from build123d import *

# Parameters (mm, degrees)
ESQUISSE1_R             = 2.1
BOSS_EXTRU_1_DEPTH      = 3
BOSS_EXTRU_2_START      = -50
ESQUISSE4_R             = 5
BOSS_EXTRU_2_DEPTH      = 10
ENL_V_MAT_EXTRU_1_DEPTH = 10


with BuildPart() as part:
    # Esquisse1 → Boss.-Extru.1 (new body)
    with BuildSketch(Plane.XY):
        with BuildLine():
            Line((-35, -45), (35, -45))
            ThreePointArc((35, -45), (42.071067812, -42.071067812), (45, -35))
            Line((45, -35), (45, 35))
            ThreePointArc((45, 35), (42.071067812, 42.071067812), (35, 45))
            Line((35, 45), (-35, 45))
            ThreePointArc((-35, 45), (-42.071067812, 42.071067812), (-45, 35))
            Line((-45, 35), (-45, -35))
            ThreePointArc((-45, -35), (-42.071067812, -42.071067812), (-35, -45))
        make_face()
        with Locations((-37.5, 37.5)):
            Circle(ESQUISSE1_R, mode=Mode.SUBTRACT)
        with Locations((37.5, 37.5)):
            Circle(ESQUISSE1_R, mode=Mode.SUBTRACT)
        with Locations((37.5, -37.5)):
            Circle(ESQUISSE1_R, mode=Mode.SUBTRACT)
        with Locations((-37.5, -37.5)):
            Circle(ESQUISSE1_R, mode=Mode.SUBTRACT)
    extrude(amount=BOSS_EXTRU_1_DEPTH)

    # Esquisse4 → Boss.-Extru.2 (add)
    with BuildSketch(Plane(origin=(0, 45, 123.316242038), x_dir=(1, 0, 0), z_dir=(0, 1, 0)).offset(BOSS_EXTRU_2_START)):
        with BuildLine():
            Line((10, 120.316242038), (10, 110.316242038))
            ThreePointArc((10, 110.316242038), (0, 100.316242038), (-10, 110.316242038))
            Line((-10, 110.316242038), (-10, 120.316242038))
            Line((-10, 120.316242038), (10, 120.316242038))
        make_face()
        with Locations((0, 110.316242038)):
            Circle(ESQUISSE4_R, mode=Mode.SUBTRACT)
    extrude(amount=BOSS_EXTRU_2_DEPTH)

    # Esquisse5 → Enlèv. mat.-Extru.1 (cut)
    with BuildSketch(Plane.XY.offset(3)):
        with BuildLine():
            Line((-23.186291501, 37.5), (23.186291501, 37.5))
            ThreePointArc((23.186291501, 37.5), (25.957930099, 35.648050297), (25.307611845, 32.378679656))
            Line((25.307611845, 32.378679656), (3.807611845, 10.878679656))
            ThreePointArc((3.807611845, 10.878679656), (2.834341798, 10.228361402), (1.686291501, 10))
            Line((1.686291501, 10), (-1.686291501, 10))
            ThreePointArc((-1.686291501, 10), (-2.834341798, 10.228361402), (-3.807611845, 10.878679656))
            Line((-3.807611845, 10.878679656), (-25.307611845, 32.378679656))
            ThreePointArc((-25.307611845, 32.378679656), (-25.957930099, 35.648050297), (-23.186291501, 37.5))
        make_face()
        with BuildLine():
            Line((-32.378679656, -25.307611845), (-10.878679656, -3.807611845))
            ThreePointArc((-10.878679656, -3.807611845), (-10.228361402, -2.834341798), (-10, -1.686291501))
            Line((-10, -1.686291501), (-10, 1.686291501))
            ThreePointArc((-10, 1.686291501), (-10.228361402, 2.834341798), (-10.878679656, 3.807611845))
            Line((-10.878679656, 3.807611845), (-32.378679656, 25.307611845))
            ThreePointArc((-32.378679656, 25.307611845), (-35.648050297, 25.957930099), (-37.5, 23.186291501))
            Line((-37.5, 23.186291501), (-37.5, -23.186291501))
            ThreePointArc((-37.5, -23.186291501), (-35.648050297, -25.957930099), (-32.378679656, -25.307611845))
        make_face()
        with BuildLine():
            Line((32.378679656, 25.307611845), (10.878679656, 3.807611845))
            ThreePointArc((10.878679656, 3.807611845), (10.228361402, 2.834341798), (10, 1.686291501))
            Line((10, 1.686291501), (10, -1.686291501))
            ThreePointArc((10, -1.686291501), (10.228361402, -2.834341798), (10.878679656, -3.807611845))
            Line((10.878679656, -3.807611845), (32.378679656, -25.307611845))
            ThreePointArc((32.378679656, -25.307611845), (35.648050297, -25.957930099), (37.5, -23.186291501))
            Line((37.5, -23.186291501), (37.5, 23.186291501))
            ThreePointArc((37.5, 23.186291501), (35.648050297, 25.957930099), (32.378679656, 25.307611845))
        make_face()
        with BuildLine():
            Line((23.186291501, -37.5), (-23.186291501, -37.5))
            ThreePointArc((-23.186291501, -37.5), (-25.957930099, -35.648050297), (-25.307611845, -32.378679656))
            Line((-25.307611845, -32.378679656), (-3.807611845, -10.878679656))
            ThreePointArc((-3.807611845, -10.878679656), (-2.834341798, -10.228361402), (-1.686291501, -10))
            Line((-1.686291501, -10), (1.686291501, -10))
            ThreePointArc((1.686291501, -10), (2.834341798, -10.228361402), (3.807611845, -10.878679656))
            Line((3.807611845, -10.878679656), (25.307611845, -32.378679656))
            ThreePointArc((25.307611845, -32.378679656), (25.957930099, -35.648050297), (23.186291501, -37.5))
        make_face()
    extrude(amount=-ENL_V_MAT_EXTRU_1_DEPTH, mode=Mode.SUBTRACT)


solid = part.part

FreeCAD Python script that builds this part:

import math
import FreeCAD as App
import Part
import Sketcher

doc = App.newDocument("Part")
body = doc.addObject("PartDesign::Body", "Body")

sketch1 = body.newObject("Sketcher::SketchObject", "Sketch")
sketch1.AttachmentSupport = (doc.getObject("XY_Plane"), [""])
sketch1.MapMode = "FlatFace"
sketch1.addGeometry(Part.LineSegment(App.Vector(-35, -45, 0), App.Vector(35, -45, 0)), False)
sketch1.addGeometry(Part.ArcOfCircle(Part.Circle(App.Vector(35, -35, 0), App.Vector(0, 0, 1), 10), math.radians(-90), math.radians(0)), False)
sketch1.addGeometry(Part.LineSegment(App.Vector(45, -35, 0), App.Vector(45, 35, 0)), False)
sketch1.addGeometry(Part.ArcOfCircle(Part.Circle(App.Vector(35, 35, 0), App.Vector(0, 0, 1), 10), math.radians(0), math.radians(90)), False)
sketch1.addGeometry(Part.LineSegment(App.Vector(35, 45, 0), App.Vector(-35, 45, 0)), False)
sketch1.addGeometry(Part.ArcOfCircle(Part.Circle(App.Vector(-35, 35, 0), App.Vector(0, 0, 1), 10), math.radians(90), math.radians(180)), False)
sketch1.addGeometry(Part.LineSegment(App.Vector(-45, 35, 0), App.Vector(-45, -35, 0)), False)
sketch1.addGeometry(Part.ArcOfCircle(Part.Circle(App.Vector(-35, -35, 0), App.Vector(0, 0, 1), 10), math.radians(180), math.radians(270)), False)
sketch1.addGeometry(Part.Circle(App.Vector(-37.5, -37.5, 0), App.Vector(0, 0, 1), 2.1), False)
sketch1.addGeometry(Part.Circle(App.Vector(37.5, -37.5, 0), App.Vector(0, 0, 1), 2.1), False)
sketch1.addGeometry(Part.Circle(App.Vector(-37.5, 37.5, 0), App.Vector(0, 0, 1), 2.1), False)
sketch1.addGeometry(Part.Circle(App.Vector(37.5, 37.5, 0), App.Vector(0, 0, 1), 2.1), False)
sketch1.addConstraint(Sketcher.Constraint("Tangent", 0, 2, 1, 1))
sketch1.addConstraint(Sketcher.Constraint("Tangent", 1, 2, 2, 1))
sketch1.addConstraint(Sketcher.Constraint("Tangent", 2, 2, 3, 1))
sketch1.addConstraint(Sketcher.Constraint("Tangent", 3, 2, 4, 1))
sketch1.addConstraint(Sketcher.Constraint("Tangent", 4, 2, 5, 1))
sketch1.addConstraint(Sketcher.Constraint("Tangent", 5, 2, 6, 1))
sketch1.addConstraint(Sketcher.Constraint("Tangent", 6, 2, 7, 1))
sketch1.addConstraint(Sketcher.Constraint("Tangent", 7, 2, 0, 1))
sketch1.addConstraint(Sketcher.Constraint("Horizontal", 0))
sketch1.addConstraint(Sketcher.Constraint("Vertical", 2))
sketch1.addConstraint(Sketcher.Constraint("Horizontal", 4))
sketch1.addConstraint(Sketcher.Constraint("Vertical", 6))
sketch1.addConstraint(Sketcher.Constraint("Equal", 1, 3))
sketch1.addConstraint(Sketcher.Constraint("Equal", 3, 5))
sketch1.addConstraint(Sketcher.Constraint("Equal", 5, 7))
sketch1.addConstraint(Sketcher.Constraint("Equal", 8, 9))
sketch1.addConstraint(Sketcher.Constraint("Equal", 9, 10))
sketch1.addConstraint(Sketcher.Constraint("Equal", 10, 11))
sketch1.addConstraint(Sketcher.Constraint("Symmetric", 1, 3, 5, 3, -1, 1))
sketch1.addConstraint(Sketcher.Constraint("Symmetric", 9, 3, 10, 3, -1, 1))
sketch1.addConstraint(Sketcher.Constraint("Symmetric", 8, 3, 11, 3, -1, 1))
sketch1.addConstraint(Sketcher.Constraint("Symmetric", 8, 3, 9, 3, -2))
sketch1.addConstraint(Sketcher.Constraint("Equal", 4, 2))
sketch1.addConstraint(Sketcher.Constraint("Radius", 1, 10.0))
sketch1.addConstraint(Sketcher.Constraint("Diameter", 8, 4.2))
sketch1.addConstraint(Sketcher.Constraint("DistanceX", 0, 1, 0, 2, 70.0))
sketch1.addConstraint(Sketcher.Constraint("DistanceX", 8, 3, 9, 3, 75.0))
sketch1.addConstraint(Sketcher.Constraint("DistanceY", 8, 3, 10, 3, 75.0))
pad1 = body.newObject("PartDesign::Pad", "Pad")
pad1.Profile = sketch1
pad1.Length = 3

sketch2 = body.newObject("Sketcher::SketchObject", "Sketch001")
sketch2.AttachmentSupport = (doc.getObject("XZ_Plane"), [""])
sketch2.MapMode = "FlatFace"
sketch2.AttachmentOffset = App.Placement(App.Vector(0, 0, 5), App.Rotation())
sketch2.addGeometry(Part.LineSegment(App.Vector(10, 13, 0), App.Vector(10, 3, 0)), False)
sketch2.addGeometry(Part.LineSegment(App.Vector(10, 3, 0), App.Vector(-10, 3, 0)), False)
sketch2.addGeometry(Part.LineSegment(App.Vector(-10, 3, 0), App.Vector(-10, 13, 0)), False)
sketch2.addGeometry(Part.ArcOfCircle(Part.Circle(App.Vector(0, 13, 0), App.Vector(0, 0, 1), 10), math.radians(0), math.radians(180)), False)
sketch2.addGeometry(Part.Circle(App.Vector(0, 13, 0), App.Vector(0, 0, 1), 5), False)
sketch2.addConstraint(Sketcher.Constraint("Coincident", 0, 2, 1, 1))
sketch2.addConstraint(Sketcher.Constraint("Coincident", 1, 2, 2, 1))
sketch2.addConstraint(Sketcher.Constraint("Tangent", 2, 2, 3, 2))
sketch2.addConstraint(Sketcher.Constraint("Tangent", 3, 1, 0, 1))
sketch2.addConstraint(Sketcher.Constraint("Vertical", 0))
sketch2.addConstraint(Sketcher.Constraint("Horizontal", 1))
sketch2.addConstraint(Sketcher.Constraint("Vertical", 2))
sketch2.addConstraint(Sketcher.Constraint("Coincident", 4, 3, 3, 3))
sketch2.addConstraint(Sketcher.Constraint("PointOnObject", 3, 3, -2))
sketch2.addConstraint(Sketcher.Constraint("Diameter", 4, 10.0))
sketch2.addConstraint(Sketcher.Constraint("Radius", 3, 10.0))
sketch2.addConstraint(Sketcher.Constraint("DistanceY", 0, 2, 0, 1, 10.0))
sketch2.addConstraint(Sketcher.Constraint("DistanceY", -1, 1, 3, 3, 13.0))
pad2 = body.newObject("PartDesign::Pad", "Pad001")
pad2.Profile = sketch2
pad2.Length = 10
pad2.Reversed = True

sketch3 = body.newObject("Sketcher::SketchObject", "Sketch002")
sketch3.AttachmentSupport = (doc.getObject("XY_Plane"), [""])
sketch3.MapMode = "FlatFace"
sketch3.AttachmentOffset = App.Placement(App.Vector(0, 0, 3), App.Rotation())
sketch3.addGeometry(Part.LineSegment(App.Vector(23.2, 37.5, 0), App.Vector(-23.2, 37.5, 0)), False)
sketch3.addGeometry(Part.ArcOfCircle(Part.Circle(App.Vector(-23.2, 34.5, 0), App.Vector(0, 0, 1), 3), math.radians(90), math.radians(225)), False)
sketch3.addGeometry(Part.LineSegment(App.Vector(-25.3, 32.4, 0), App.Vector(-3.8, 10.9, 0)), False)
sketch3.addGeometry(Part.ArcOfCircle(Part.Circle(App.Vector(-1.7, 13, 0), App.Vector(0, 0, 1), 3), math.radians(-135), math.radians(-90)), False)
sketch3.addGeometry(Part.LineSegment(App.Vector(-1.7, 10, 0), App.Vector(1.7, 10, 0)), False)
sketch3.addGeometry(Part.ArcOfCircle(Part.Circle(App.Vector(1.7, 13, 0), App.Vector(0, 0, 1), 3), math.radians(-90), math.radians(-45)), False)
sketch3.addGeometry(Part.LineSegment(App.Vector(3.8, 10.9, 0), App.Vector(25.3, 32.4, 0)), False)
sketch3.addGeometry(Part.ArcOfCircle(Part.Circle(App.Vector(23.2, 34.5, 0), App.Vector(0, 0, 1), 3), math.radians(-45), math.radians(90)), False)
sketch3.addGeometry(Part.LineSegment(App.Vector(-32.4, -25.3, 0), App.Vector(-10.9, -3.8, 0)), False)
sketch3.addGeometry(Part.ArcOfCircle(Part.Circle(App.Vector(-13, -1.7, 0), App.Vector(0, 0, 1), 3), math.radians(-45), math.radians(0)), False)
sketch3.addGeometry(Part.LineSegment(App.Vector(-10, -1.7, 0), App.Vector(-10, 1.7, 0)), False)
sketch3.addGeometry(Part.ArcOfCircle(Part.Circle(App.Vector(-13, 1.7, 0), App.Vector(0, 0, 1), 3), math.radians(0), math.radians(45)), False)
sketch3.addGeometry(Part.LineSegment(App.Vector(-10.9, 3.8, 0), App.Vector(-32.4, 25.3, 0)), False)
sketch3.addGeometry(Part.ArcOfCircle(Part.Circle(App.Vector(-34.5, 23.2, 0), App.Vector(0, 0, 1), 3), math.radians(45), math.radians(180)), False)
sketch3.addGeometry(Part.LineSegment(App.Vector(-37.5, 23.2, 0), App.Vector(-37.5, -23.2, 0)), False)
sketch3.addGeometry(Part.ArcOfCircle(Part.Circle(App.Vector(-34.5, -23.2, 0), App.Vector(0, 0, 1), 3), math.radians(180), math.radians(315)), False)
sketch3.addGeometry(Part.LineSegment(App.Vector(32.4, 25.3, 0), App.Vector(10.9, 3.8, 0)), False)
sketch3.addGeometry(Part.ArcOfCircle(Part.Circle(App.Vector(13, 1.7, 0), App.Vector(0, 0, 1), 3), math.radians(135), math.radians(180)), False)
sketch3.addGeometry(Part.LineSegment(App.Vector(10, 1.7, 0), App.Vector(10, -1.7, 0)), False)
sketch3.addGeometry(Part.ArcOfCircle(Part.Circle(App.Vector(13, -1.7, 0), App.Vector(0, 0, 1), 3), math.radians(180), math.radians(225)), False)
sketch3.addGeometry(Part.LineSegment(App.Vector(10.9, -3.8, 0), App.Vector(32.4, -25.3, 0)), False)
sketch3.addGeometry(Part.ArcOfCircle(Part.Circle(App.Vector(34.5, -23.2, 0), App.Vector(0, 0, 1), 3), math.radians(-135), math.radians(0)), False)
sketch3.addGeometry(Part.LineSegment(App.Vector(37.5, -23.2, 0), App.Vector(37.5, 23.2, 0)), False)
sketch3.addGeometry(Part.ArcOfCircle(Part.Circle(App.Vector(34.5, 23.2, 0), App.Vector(0, 0, 1), 3), math.radians(0), math.radians(135)), False)
sketch3.addGeometry(Part.LineSegment(App.Vector(-23.2, -37.5, 0), App.Vector(23.2, -37.5, 0)), False)
sketch3.addGeometry(Part.ArcOfCircle(Part.Circle(App.Vector(23.2, -34.5, 0), App.Vector(0, 0, 1), 3), math.radians(-90), math.radians(45)), False)
sketch3.addGeometry(Part.LineSegment(App.Vector(25.3, -32.4, 0), App.Vector(3.8, -10.9, 0)), False)
sketch3.addGeometry(Part.ArcOfCircle(Part.Circle(App.Vector(1.7, -13, 0), App.Vector(0, 0, 1), 3), math.radians(45), math.radians(90)), False)
sketch3.addGeometry(Part.LineSegment(App.Vector(1.7, -10, 0), App.Vector(-1.7, -10, 0)), False)
sketch3.addGeometry(Part.ArcOfCircle(Part.Circle(App.Vector(-1.7, -13, 0), App.Vector(0, 0, 1), 3), math.radians(90), math.radians(135)), False)
sketch3.addGeometry(Part.LineSegment(App.Vector(-3.8, -10.9, 0), App.Vector(-25.3, -32.4, 0)), False)
sketch3.addGeometry(Part.ArcOfCircle(Part.Circle(App.Vector(-23.2, -34.5, 0), App.Vector(0, 0, 1), 3), math.radians(135), math.radians(270)), False)
sketch3.addConstraint(Sketcher.Constraint("Tangent", 0, 2, 1, 1))
sketch3.addConstraint(Sketcher.Constraint("Tangent", 1, 2, 2, 1))
sketch3.addConstraint(Sketcher.Constraint("Tangent", 2, 2, 3, 1))
sketch3.addConstraint(Sketcher.Constraint("Tangent", 3, 2, 4, 1))
sketch3.addConstraint(Sketcher.Constraint("Tangent", 4, 2, 5, 1))
sketch3.addConstraint(Sketcher.Constraint("Tangent", 5, 2, 6, 1))
sketch3.addConstraint(Sketcher.Constraint("Tangent", 6, 2, 7, 1))
sketch3.addConstraint(Sketcher.Constraint("Tangent", 7, 2, 0, 1))
sketch3.addConstraint(Sketcher.Constraint("Tangent", 8, 2, 9, 1))
sketch3.addConstraint(Sketcher.Constraint("Tangent", 9, 2, 10, 1))
sketch3.addConstraint(Sketcher.Constraint("Tangent", 10, 2, 11, 1))
sketch3.addConstraint(Sketcher.Constraint("Tangent", 11, 2, 12, 1))
sketch3.addConstraint(Sketcher.Constraint("Tangent", 12, 2, 13, 1))
sketch3.addConstraint(Sketcher.Constraint("Tangent", 13, 2, 14, 1))
sketch3.addConstraint(Sketcher.Constraint("Tangent", 14, 2, 15, 1))
sketch3.addConstraint(Sketcher.Constraint("Tangent", 15, 2, 8, 1))
sketch3.addConstraint(Sketcher.Constraint("Tangent", 16, 2, 17, 1))
sketch3.addConstraint(Sketcher.Constraint("Tangent", 17, 2, 18, 1))
sketch3.addConstraint(Sketcher.Constraint("Tangent", 18, 2, 19, 1))
sketch3.addConstraint(Sketcher.Constraint("Tangent", 19, 2, 20, 1))
sketch3.addConstraint(Sketcher.Constraint("Tangent", 20, 2, 21, 1))
sketch3.addConstraint(Sketcher.Constraint("Tangent", 21, 2, 22, 1))
sketch3.addConstraint(Sketcher.Constraint("Tangent", 22, 2, 23, 1))
sketch3.addConstraint(Sketcher.Constraint("Tangent", 23, 2, 16, 1))
sketch3.addConstraint(Sketcher.Constraint("Tangent", 24, 2, 25, 1))
sketch3.addConstraint(Sketcher.Constraint("Tangent", 25, 2, 26, 1))
sketch3.addConstraint(Sketcher.Constraint("Tangent", 26, 2, 27, 1))
sketch3.addConstraint(Sketcher.Constraint("Tangent", 27, 2, 28, 1))
sketch3.addConstraint(Sketcher.Constraint("Tangent", 28, 2, 29, 1))
sketch3.addConstraint(Sketcher.Constraint("Tangent", 29, 2, 30, 1))
sketch3.addConstraint(Sketcher.Constraint("Tangent", 30, 2, 31, 1))
sketch3.addConstraint(Sketcher.Constraint("Tangent", 31, 2, 24, 1))
sketch3.addConstraint(Sketcher.Constraint("Horizontal", 0))
sketch3.addConstraint(Sketcher.Constraint("Horizontal", 4))
sketch3.addConstraint(Sketcher.Constraint("Vertical", 10))
sketch3.addConstraint(Sketcher.Constraint("Vertical", 14))
sketch3.addConstraint(Sketcher.Constraint("Vertical", 18))
sketch3.addConstraint(Sketcher.Constraint("Vertical", 22))
sketch3.addConstraint(Sketcher.Constraint("Horizontal", 24))
sketch3.addConstraint(Sketcher.Constraint("Horizontal", 28))
sketch3.addConstraint(Sketcher.Constraint("Equal", 1, 3))
sketch3.addConstraint(Sketcher.Constraint("Equal", 3, 5))
sketch3.addConstraint(Sketcher.Constraint("Equal", 5, 7))
sketch3.addConstraint(Sketcher.Constraint("Equal", 7, 9))
sketch3.addConstraint(Sketcher.Constraint("Equal", 9, 11))
sketch3.addConstraint(Sketcher.Constraint("Equal", 11, 13))
sketch3.addConstraint(Sketcher.Constraint("Equal", 13, 15))
sketch3.addConstraint(Sketcher.Constraint("Equal", 15, 17))
sketch3.addConstraint(Sketcher.Constraint("Equal", 17, 19))
sketch3.addConstraint(Sketcher.Constraint("Equal", 19, 21))
sketch3.addConstraint(Sketcher.Constraint("Equal", 21, 23))
sketch3.addConstraint(Sketcher.Constraint("Equal", 23, 25))
sketch3.addConstraint(Sketcher.Constraint("Equal", 25, 27))
sketch3.addConstraint(Sketcher.Constraint("Equal", 27, 29))
sketch3.addConstraint(Sketcher.Constraint("Equal", 29, 31))
sketch3.addConstraint(Sketcher.Constraint("Symmetric", 9, 3, 17, 3, -1, 1))
sketch3.addConstraint(Sketcher.Constraint("Symmetric", 13, 3, 21, 3, -1, 1))
sketch3.addConstraint(Sketcher.Constraint("Symmetric", 1, 3, 25, 3, -1, 1))
sketch3.addConstraint(Sketcher.Constraint("Symmetric", 3, 3, 27, 3, -1, 1))
sketch3.addConstraint(Sketcher.Constraint("Symmetric", 5, 2, 29, 2, -1, 1))
sketch3.addConstraint(Sketcher.Constraint("Symmetric", 2, 2, 5, 2, -2))
sketch3.addConstraint(Sketcher.Constraint("Symmetric", 11, 2, 16, 2, -2))
sketch3.addConstraint(Sketcher.Constraint("Symmetric", 8, 2, 19, 2, -2))
sketch3.addConstraint(Sketcher.Constraint("Perpendicular", 2, 6))
sketch3.addConstraint(Sketcher.Constraint("Parallel", 6, 8))
sketch3.addConstraint(Sketcher.Constraint("Equal", 28, 10))
sketch3.addConstraint(Sketcher.Constraint("Equal", 24, 14))
sketch3.addConstraint(Sketcher.Constraint("Radius", 1, 3.0))
sketch3.addConstraint(Sketcher.Constraint("DistanceY", -1, 1, 3, 3, 13.0))
sketch3.addConstraint(Sketcher.Constraint("DistanceX", 9, 3, -1, 1, 13.0))
sketch3.addConstraint(Sketcher.Constraint("DistanceY", -1, 1, 1, 3, 34.5))
sketch3.addConstraint(Sketcher.Constraint("DistanceX", 0, 2, 0, 1, 46.372583))
pocket1 = body.newObject("PartDesign::Pocket", "Pocket")
pocket1.Profile = sketch3
pocket1.Length = 10

doc.recompute()
